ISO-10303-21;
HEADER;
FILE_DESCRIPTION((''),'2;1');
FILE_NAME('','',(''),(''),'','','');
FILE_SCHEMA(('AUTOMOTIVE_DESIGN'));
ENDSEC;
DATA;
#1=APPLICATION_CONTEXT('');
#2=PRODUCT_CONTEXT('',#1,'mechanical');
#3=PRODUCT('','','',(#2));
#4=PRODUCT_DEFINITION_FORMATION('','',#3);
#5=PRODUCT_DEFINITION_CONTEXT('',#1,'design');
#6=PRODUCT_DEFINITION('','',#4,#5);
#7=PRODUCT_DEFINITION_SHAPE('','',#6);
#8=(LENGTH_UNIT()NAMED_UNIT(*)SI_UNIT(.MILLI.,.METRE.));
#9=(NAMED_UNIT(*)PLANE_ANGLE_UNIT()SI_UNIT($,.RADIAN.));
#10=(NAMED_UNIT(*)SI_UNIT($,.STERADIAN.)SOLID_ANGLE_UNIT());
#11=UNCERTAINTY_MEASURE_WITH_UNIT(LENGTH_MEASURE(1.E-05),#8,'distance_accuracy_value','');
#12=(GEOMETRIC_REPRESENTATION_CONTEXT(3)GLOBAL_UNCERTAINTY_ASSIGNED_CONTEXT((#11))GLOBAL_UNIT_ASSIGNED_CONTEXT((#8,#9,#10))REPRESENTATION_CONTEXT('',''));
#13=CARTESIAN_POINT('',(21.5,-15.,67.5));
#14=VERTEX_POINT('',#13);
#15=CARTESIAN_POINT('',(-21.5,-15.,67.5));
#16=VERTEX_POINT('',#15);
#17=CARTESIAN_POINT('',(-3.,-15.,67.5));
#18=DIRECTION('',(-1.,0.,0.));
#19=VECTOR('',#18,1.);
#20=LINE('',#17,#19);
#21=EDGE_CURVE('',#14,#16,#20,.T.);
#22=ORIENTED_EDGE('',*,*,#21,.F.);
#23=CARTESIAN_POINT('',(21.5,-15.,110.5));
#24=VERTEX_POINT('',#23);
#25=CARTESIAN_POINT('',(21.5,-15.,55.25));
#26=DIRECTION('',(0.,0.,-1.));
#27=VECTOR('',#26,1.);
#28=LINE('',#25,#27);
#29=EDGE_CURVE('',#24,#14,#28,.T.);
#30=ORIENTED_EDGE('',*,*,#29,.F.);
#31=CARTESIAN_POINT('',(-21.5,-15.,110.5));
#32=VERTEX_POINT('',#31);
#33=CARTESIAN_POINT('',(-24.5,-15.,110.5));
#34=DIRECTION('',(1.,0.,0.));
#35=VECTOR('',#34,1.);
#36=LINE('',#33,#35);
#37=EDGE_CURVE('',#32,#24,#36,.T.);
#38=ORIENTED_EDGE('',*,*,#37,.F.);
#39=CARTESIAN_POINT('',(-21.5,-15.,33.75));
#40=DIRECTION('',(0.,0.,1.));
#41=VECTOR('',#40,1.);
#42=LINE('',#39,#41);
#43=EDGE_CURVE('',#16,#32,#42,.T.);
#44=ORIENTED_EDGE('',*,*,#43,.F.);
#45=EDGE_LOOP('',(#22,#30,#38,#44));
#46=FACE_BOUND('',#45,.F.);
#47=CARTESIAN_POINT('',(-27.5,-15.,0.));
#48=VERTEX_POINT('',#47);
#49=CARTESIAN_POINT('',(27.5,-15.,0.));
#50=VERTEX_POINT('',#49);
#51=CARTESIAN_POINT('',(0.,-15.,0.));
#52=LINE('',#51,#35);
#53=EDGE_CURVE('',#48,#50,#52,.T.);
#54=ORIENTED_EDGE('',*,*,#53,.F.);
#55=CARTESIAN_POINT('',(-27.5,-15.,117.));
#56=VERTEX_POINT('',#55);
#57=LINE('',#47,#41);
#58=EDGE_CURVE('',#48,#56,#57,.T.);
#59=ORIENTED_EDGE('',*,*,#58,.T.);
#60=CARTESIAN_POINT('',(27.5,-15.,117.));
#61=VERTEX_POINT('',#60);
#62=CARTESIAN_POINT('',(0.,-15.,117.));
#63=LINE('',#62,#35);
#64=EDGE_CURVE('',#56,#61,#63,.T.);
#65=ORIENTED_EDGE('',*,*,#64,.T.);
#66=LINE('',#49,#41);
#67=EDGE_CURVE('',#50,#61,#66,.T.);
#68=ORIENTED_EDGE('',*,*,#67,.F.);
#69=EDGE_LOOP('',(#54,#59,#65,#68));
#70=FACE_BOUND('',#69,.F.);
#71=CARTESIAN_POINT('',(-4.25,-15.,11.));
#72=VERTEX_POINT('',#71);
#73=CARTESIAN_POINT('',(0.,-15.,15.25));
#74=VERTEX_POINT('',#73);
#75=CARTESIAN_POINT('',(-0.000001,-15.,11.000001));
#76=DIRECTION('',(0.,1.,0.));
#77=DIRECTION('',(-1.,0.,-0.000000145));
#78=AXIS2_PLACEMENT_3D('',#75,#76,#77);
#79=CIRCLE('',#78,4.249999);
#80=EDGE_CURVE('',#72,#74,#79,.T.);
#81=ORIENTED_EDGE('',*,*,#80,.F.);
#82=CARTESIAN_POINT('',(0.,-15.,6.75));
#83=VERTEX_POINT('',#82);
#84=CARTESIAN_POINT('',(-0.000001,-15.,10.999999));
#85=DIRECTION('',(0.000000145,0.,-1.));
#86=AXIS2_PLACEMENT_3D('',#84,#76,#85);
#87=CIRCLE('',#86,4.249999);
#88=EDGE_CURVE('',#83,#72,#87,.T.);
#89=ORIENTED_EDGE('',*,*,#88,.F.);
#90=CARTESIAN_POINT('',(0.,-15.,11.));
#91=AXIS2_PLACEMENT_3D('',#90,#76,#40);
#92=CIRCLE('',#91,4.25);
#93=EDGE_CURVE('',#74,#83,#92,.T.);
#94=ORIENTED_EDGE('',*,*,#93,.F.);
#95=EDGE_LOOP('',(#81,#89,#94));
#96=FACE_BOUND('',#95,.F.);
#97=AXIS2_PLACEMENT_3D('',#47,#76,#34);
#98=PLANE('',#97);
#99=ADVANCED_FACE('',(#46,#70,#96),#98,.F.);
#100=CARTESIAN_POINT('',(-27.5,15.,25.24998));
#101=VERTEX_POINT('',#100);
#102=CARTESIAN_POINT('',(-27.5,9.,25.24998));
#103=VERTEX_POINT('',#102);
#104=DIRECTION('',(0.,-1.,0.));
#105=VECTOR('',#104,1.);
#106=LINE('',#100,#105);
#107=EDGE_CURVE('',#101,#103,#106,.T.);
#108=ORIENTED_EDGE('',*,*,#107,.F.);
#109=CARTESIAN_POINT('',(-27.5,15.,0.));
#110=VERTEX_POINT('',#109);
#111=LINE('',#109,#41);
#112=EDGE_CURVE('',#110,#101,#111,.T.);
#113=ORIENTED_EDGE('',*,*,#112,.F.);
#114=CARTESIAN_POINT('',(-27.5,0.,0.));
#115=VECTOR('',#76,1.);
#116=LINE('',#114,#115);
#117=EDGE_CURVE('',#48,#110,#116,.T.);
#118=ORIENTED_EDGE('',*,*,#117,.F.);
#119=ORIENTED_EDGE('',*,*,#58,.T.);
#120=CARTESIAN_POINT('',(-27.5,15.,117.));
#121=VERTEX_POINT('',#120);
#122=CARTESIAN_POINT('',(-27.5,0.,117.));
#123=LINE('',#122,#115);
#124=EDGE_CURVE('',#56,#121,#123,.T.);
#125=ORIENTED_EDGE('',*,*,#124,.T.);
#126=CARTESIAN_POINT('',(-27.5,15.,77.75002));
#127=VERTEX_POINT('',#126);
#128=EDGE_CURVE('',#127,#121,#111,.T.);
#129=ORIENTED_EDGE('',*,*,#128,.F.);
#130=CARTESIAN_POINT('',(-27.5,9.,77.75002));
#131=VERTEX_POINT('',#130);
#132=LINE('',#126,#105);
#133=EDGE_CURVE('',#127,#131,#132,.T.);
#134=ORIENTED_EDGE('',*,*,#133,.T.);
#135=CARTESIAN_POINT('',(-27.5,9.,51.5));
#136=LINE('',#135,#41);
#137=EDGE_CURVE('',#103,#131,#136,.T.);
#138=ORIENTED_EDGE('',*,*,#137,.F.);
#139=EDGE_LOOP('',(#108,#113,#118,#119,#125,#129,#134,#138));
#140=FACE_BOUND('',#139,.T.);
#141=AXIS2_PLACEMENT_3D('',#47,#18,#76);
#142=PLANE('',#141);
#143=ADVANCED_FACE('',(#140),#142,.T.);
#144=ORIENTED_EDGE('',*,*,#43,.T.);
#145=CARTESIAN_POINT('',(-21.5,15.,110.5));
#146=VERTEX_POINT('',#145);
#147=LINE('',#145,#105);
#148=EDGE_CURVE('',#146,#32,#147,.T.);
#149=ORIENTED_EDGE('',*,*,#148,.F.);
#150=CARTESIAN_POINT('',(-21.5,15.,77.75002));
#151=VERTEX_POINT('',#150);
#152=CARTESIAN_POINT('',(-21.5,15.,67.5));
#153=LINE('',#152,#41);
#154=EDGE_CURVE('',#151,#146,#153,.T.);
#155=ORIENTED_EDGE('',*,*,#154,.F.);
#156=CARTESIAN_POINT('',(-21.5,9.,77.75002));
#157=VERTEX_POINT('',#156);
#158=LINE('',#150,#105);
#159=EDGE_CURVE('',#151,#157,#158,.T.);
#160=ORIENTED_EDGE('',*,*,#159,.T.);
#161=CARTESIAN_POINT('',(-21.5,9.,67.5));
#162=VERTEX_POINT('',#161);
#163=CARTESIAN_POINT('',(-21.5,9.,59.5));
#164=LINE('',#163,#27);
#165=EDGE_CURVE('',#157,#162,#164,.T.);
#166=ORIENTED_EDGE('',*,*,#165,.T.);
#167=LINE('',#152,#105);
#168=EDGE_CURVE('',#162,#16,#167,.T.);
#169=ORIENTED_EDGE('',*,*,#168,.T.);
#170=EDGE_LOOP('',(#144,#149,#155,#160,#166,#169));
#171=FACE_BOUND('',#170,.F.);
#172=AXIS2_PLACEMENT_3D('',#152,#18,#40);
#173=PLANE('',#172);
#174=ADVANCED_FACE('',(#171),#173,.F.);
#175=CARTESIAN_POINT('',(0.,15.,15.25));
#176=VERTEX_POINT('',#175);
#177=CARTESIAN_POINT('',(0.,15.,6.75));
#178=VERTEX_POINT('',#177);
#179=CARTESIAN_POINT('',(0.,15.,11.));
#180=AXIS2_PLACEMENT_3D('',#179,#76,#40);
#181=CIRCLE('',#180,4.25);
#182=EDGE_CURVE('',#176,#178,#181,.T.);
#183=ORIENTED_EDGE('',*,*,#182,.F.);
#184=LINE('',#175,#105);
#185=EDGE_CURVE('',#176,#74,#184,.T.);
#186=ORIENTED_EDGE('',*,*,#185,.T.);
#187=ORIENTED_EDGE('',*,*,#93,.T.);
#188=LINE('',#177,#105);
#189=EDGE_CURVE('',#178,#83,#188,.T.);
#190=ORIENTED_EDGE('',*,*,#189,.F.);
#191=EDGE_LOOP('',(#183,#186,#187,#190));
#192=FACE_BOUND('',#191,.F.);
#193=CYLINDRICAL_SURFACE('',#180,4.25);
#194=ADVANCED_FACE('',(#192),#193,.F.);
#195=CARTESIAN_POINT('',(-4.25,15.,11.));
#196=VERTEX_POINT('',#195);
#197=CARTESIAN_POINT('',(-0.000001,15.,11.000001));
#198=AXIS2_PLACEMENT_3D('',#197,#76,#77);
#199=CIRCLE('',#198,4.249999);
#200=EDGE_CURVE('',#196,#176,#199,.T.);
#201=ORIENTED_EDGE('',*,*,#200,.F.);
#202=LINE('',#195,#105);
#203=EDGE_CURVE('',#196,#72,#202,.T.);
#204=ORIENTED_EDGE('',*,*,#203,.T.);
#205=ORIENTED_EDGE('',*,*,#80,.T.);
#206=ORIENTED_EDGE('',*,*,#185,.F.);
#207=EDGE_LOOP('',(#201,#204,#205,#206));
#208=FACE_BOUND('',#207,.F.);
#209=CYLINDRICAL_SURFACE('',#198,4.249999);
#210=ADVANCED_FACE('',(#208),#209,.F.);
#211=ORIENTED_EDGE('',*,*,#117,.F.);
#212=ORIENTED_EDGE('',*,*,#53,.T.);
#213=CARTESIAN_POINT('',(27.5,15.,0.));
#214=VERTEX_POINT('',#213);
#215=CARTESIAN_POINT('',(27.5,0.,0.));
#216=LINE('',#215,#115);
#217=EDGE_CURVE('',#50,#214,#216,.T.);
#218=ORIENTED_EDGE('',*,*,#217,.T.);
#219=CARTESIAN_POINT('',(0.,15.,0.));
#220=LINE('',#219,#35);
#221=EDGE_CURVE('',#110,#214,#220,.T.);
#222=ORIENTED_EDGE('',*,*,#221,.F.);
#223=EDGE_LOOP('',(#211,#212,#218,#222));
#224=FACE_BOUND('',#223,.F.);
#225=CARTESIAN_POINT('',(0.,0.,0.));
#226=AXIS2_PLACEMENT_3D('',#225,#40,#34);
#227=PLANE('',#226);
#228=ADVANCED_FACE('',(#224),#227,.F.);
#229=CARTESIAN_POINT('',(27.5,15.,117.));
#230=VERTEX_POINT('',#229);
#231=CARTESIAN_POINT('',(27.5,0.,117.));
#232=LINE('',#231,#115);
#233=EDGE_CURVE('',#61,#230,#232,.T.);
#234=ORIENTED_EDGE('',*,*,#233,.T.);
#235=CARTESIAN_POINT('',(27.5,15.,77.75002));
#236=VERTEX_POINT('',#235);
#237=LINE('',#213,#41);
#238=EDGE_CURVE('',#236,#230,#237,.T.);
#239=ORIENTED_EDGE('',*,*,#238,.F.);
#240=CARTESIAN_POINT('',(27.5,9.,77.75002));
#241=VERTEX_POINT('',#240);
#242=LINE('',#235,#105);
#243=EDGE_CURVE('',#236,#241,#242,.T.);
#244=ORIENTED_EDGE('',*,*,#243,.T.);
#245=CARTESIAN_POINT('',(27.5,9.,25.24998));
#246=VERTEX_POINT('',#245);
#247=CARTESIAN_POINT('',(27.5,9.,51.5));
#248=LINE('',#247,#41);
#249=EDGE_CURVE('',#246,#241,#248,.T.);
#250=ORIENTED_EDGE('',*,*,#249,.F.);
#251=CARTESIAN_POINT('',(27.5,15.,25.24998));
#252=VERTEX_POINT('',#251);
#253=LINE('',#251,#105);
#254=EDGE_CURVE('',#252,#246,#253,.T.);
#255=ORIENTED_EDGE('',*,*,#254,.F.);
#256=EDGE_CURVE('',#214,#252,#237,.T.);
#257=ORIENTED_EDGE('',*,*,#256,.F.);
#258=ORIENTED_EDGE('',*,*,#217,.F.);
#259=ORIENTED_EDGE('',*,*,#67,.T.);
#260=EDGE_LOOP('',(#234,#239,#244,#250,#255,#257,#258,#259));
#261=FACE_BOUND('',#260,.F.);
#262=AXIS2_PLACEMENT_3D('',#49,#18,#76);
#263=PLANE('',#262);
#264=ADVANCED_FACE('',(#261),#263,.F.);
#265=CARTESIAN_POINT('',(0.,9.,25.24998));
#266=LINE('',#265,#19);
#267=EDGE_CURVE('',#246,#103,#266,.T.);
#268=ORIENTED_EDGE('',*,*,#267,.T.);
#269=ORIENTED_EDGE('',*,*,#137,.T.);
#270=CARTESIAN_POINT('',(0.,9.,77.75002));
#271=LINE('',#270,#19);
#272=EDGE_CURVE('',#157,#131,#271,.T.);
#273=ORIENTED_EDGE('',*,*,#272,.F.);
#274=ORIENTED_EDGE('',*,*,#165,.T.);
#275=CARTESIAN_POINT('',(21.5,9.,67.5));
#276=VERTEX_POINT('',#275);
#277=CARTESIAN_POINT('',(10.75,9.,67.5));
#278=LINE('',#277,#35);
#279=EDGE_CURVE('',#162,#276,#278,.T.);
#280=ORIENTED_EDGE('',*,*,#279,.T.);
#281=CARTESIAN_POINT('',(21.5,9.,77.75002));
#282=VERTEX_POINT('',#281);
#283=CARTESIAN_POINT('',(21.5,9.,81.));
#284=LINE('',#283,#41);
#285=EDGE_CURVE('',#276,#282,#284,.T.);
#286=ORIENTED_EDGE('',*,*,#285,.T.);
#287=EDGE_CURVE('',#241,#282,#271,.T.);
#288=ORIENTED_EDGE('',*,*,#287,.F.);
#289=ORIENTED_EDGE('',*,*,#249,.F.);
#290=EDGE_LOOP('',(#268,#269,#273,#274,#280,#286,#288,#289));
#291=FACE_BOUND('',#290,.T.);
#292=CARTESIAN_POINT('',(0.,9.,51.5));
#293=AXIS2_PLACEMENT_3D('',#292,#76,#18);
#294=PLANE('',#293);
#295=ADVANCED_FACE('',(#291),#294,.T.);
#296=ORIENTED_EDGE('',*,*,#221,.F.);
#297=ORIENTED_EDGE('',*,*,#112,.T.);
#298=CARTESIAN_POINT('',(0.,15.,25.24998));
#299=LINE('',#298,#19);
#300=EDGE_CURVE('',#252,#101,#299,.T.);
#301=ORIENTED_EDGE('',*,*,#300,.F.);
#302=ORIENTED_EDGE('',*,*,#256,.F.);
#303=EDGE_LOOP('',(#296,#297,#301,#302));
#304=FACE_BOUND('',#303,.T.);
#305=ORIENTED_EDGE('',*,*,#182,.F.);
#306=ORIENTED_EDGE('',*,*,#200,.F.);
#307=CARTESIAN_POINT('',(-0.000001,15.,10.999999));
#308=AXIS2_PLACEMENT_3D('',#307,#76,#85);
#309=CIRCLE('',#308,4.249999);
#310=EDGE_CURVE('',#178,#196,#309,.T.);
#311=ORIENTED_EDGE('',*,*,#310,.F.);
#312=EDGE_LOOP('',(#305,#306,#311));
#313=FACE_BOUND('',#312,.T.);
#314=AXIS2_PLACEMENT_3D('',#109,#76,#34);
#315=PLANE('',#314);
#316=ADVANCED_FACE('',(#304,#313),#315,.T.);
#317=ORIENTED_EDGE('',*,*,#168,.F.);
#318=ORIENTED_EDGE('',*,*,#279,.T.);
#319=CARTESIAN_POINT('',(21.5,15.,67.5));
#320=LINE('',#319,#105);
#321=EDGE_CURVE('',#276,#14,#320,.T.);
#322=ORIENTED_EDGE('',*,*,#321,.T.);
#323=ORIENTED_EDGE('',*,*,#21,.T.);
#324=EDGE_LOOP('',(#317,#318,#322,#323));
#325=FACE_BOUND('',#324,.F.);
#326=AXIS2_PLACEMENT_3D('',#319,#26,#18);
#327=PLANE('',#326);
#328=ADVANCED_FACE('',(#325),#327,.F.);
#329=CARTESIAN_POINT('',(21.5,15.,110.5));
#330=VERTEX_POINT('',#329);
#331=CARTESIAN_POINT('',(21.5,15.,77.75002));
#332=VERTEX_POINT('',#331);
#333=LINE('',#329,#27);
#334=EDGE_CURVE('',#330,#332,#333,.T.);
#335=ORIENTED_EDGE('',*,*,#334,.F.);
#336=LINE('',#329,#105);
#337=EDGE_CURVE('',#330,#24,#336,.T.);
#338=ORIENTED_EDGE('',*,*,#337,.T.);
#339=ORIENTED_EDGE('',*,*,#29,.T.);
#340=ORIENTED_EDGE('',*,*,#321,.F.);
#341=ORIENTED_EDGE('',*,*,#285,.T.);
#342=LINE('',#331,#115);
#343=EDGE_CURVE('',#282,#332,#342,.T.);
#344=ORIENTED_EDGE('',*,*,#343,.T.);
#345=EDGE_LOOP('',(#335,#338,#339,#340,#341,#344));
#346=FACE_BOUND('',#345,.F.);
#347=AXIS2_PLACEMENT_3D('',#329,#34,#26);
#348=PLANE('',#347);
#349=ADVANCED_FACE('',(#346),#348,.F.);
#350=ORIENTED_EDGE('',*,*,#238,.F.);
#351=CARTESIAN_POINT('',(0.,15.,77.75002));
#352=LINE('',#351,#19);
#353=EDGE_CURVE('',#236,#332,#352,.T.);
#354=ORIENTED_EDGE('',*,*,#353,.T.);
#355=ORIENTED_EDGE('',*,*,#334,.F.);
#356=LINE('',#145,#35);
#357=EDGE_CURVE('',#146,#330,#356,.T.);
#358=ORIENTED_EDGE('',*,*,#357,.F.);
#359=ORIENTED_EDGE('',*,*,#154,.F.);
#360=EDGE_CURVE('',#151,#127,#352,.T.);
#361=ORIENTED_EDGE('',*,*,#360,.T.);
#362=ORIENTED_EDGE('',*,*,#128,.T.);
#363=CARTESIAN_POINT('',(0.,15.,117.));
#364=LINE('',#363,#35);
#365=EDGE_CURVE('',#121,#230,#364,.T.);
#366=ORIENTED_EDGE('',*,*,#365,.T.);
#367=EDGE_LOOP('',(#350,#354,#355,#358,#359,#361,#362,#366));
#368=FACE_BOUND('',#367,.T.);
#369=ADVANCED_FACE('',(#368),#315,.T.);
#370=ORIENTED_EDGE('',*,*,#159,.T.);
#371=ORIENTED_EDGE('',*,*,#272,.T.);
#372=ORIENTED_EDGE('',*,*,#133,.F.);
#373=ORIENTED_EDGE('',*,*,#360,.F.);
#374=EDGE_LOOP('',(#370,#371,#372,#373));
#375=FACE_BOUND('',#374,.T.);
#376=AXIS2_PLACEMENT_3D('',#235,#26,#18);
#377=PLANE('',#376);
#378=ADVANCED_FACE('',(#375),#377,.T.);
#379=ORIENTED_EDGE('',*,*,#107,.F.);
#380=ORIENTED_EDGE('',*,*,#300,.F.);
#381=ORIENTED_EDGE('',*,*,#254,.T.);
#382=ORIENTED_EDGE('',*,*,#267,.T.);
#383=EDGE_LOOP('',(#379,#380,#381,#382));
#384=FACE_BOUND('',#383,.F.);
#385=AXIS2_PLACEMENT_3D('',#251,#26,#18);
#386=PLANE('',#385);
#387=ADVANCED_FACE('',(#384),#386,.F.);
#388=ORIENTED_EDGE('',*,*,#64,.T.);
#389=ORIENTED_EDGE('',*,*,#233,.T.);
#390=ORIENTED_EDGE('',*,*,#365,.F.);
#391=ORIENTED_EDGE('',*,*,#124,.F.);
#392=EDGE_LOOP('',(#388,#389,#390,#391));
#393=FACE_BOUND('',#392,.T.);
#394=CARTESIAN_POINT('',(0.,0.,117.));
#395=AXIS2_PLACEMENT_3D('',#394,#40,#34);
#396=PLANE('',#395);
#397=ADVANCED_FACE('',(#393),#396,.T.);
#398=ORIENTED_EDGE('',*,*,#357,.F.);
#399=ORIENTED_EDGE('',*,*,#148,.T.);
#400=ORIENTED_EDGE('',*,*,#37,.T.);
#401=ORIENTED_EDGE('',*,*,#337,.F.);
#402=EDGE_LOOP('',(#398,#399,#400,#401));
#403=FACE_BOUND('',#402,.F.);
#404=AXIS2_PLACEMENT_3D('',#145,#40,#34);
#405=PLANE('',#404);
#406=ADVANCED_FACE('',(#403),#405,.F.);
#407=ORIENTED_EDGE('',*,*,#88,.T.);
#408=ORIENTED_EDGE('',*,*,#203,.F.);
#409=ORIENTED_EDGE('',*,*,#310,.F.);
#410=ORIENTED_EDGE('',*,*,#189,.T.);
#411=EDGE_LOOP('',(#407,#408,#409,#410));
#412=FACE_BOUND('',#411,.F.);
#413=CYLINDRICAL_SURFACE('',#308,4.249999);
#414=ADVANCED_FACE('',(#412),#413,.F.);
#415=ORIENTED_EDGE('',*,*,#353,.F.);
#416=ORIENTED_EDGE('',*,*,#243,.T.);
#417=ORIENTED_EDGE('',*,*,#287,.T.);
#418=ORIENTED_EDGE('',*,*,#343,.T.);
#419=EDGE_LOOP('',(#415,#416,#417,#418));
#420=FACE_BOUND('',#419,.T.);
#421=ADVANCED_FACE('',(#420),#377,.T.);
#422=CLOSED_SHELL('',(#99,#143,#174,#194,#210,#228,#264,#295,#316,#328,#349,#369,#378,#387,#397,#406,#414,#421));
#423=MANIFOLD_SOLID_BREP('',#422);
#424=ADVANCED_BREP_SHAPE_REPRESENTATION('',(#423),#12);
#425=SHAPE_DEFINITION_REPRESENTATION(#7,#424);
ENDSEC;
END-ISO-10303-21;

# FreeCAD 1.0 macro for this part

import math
import FreeCAD as App
import Part
import Sketcher

V = App.Vector
Q = App.Units.Quantity

doc = App.newDocument("Part")
body = doc.addObject("PartDesign::Body", "Body")

# Sketch on XY plane
sketch1 = doc.addObject("Sketcher::SketchObject", "Sketch")
body.addObject(sketch1)
sketch1.AttachmentSupport = (doc.XY_Plane, [""])
sketch1.MapMode = "FlatFace"
sketch1.addGeometry(Part.LineSegment(V(-28, 15, 0), V(-28, -15, 0)), False)
sketch1.addGeometry(Part.LineSegment(V(-28, -15, 0), V(28, -15, 0)), False)
sketch1.addGeometry(Part.LineSegment(V(28, -15, 0), V(28, 15, 0)), False)
sketch1.addGeometry(Part.LineSegment(V(28, 15, 0), V(-28, 15, 0)), False)
sketch1.addConstraint(Sketcher.Constraint("Coincident", 0, 2, 1, 1))
sketch1.addConstraint(Sketcher.Constraint("Coincident", 1, 2, 2, 1))
sketch1.addConstraint(Sketcher.Constraint("Coincident", 2, 2, 3, 1))
sketch1.addConstraint(Sketcher.Constraint("Coincident", 3, 2, 0, 1))
sketch1.addConstraint(Sketcher.Constraint("Vertical", 0))
sketch1.addConstraint(Sketcher.Constraint("Horizontal", 1))
sketch1.addConstraint(Sketcher.Constraint("Vertical", 2))
sketch1.addConstraint(Sketcher.Constraint("Horizontal", 3))
sketch1.addConstraint(Sketcher.Constraint("Symmetric", 0, 2, 2, 2, -1, 1))
sketch1.addConstraint(Sketcher.Constraint("DistanceX", 1, 1, 1, 2, Q("55 mm")))
sketch1.addConstraint(Sketcher.Constraint("DistanceY", 0, 2, 0, 1, Q("30 mm")))
pad1 = doc.addObject("PartDesign::Pad", "Pad")
body.addObject(pad1)
pad1.Profile = sketch1
pad1.Length = 117

# Sketch on XZ plane
sketch2 = doc.addObject("Sketcher::SketchObject", "Sketch001")
body.addObject(sketch2)
sketch2.AttachmentSupport = (doc.XZ_Plane, [""])
sketch2.MapMode = "FlatFace"
sketch2.AttachmentOffset = App.Placement(V(0, 0, -15), App.Rotation())
sketch2.addGeometry(Part.ArcOfCircle(Part.Circle(V(0, 11, 0), V(0, 0, 1), 4.2), math.radians(-90), math.radians(90)), False)
sketch2.addGeometry(Part.ArcOfCircle(Part.Circle(V(0, 11, 0), V(0, 0, 1), 4.2), math.radians(180), math.radians(270)), False)
sketch2.addGeometry(Part.ArcOfCircle(Part.Circle(V(0, 11, 0), V(0, 0, 1), 4.2), math.radians(90), math.radians(180)), False)
sketch2.addGeometry(Part.LineSegment(V(21.5, 67.5, 0), V(-21.5, 67.5, 0)), False)
sketch2.addGeometry(Part.LineSegment(V(-21.5, 67.5, 0), V(-21.5, 110.5, 0)), False)
sketch2.addGeometry(Part.LineSegment(V(-21.5, 110.5, 0), V(21.5, 110.5, 0)), False)
sketch2.addGeometry(Part.LineSegment(V(21.5, 110.5, 0), V(21.5, 67.5, 0)), False)
sketch2.addConstraint(Sketcher.Constraint("Tangent", 0, 1, 1, 2))
sketch2.addConstraint(Sketcher.Constraint("Tangent", 1, 1, 2, 2))
sketch2.addConstraint(Sketcher.Constraint("Tangent", 2, 1, 0, 2))
sketch2.addConstraint(Sketcher.Constraint("Coincident", 3, 2, 4, 1))
sketch2.addConstraint(Sketcher.Constraint("Coincident", 4, 2, 5, 1))
sketch2.addConstraint(Sketcher.Constraint("Coincident", 5, 2, 6, 1))
sketch2.addConstraint(Sketcher.Constraint("Coincident", 6, 2, 3, 1))
sketch2.addConstraint(Sketcher.Constraint("Horizontal", 3))
sketch2.addConstraint(Sketcher.Constraint("Vertical", 4))
sketch2.addConstraint(Sketcher.Constraint("Horizontal", 5))
sketch2.addConstraint(Sketcher.Constraint("Vertical", 6))
sketch2.addConstraint(Sketcher.Constraint("PointOnObject", 0, 3, -2))
sketch2.addConstraint(Sketcher.Constraint("PointOnObject", 0, 1, -2))
sketch2.addConstraint(Sketcher.Constraint("PointOnObject", 2, 1, -2))
sketch2.addConstraint(Sketcher.Constraint("Horizontal", 2, 3, 1, 1))
sketch2.addConstraint(Sketcher.Constraint("Equal", 5, 4))
sketch2.addConstraint(Sketcher.Constraint("DistanceX", 3, 2, 3, 1, Q("43 mm")))
sketch2.addConstraint(Sketcher.Constraint("Radius", 0, Q("4.25 mm")))
sketch2.addConstraint(Sketcher.Constraint("DistanceY", -1, 1, 0, 3, Q("11 mm")))
sketch2.addConstraint(Sketcher.Constraint("DistanceX", 3, 2, -1, 1, Q("21.5 mm")))
sketch2.addConstraint(Sketcher.Constraint("DistanceY", -1, 1, 3, 2, Q("67.5 mm")))
pocket1 = doc.addObject("PartDesign::Pocket", "Pocket")
body.addObject(pocket1)
pocket1.Profile = sketch2
pocket1.Length = 47.244
pocket1.Reversed = True

# Sketch on XZ plane
sketch3 = doc.addObject("Sketcher::SketchObject", "Sketch002")
body.addObject(sketch3)
sketch3.AttachmentSupport = (doc.XZ_Plane, [""])
sketch3.MapMode = "FlatFace"
sketch3.AttachmentOffset = App.Placement(V(0, 0, -15), App.Rotation())
sketch3.addGeometry(Part.LineSegment(V(28, 78, 0), V(28, 25, 0)), False)
sketch3.addGeometry(Part.LineSegment(V(28, 25, 0), V(-28, 25, 0)), False)
sketch3.addGeometry(Part.LineSegment(V(-28, 25, 0), V(-28, 78, 0)), False)
sketch3.addGeometry(Part.LineSegment(V(-28, 78, 0), V(28, 78, 0)), False)
sketch3.addConstraint(Sketcher.Constraint("Coincident", 0, 2, 1, 1))
sketch3.addConstraint(Sketcher.Constraint("Coincident", 1, 2, 2, 1))
sketch3.addConstraint(Sketcher.Constraint("Coincident", 2, 2, 3, 1))
sketch3.addConstraint(Sketcher.Constraint("Coincident", 3, 2, 0, 1))
sketch3.addConstraint(Sketcher.Constraint("Vertical", 0))
sketch3.addConstraint(Sketcher.Constraint("Horizontal", 1))
sketch3.addConstraint(Sketcher.Constraint("Vertical", 2))
sketch3.addConstraint(Sketcher.Constraint("Horizontal", 3))
sketch3.addConstraint(Sketcher.Constraint("DistanceX", 1, 2, 1, 1, Q("55 mm")))
sketch3.addConstraint(Sketcher.Constraint("DistanceX", -1, 1, 0, 2, Q("27.5 mm")))
sketch3.addConstraint(Sketcher.Constraint("DistanceY", 0, 2, 0, 1, Q("52.50004 mm")))
sketch3.addConstraint(Sketcher.Constraint("DistanceY", -1, 1, 0, 2, Q("25.24998 mm")))
pocket2 = doc.addObject("PartDesign::Pocket", "Pocket001")
body.addObject(pocket2)
pocket2.Profile = sketch3
pocket2.Length = 6
pocket2.Reversed = True

doc.recompute()
